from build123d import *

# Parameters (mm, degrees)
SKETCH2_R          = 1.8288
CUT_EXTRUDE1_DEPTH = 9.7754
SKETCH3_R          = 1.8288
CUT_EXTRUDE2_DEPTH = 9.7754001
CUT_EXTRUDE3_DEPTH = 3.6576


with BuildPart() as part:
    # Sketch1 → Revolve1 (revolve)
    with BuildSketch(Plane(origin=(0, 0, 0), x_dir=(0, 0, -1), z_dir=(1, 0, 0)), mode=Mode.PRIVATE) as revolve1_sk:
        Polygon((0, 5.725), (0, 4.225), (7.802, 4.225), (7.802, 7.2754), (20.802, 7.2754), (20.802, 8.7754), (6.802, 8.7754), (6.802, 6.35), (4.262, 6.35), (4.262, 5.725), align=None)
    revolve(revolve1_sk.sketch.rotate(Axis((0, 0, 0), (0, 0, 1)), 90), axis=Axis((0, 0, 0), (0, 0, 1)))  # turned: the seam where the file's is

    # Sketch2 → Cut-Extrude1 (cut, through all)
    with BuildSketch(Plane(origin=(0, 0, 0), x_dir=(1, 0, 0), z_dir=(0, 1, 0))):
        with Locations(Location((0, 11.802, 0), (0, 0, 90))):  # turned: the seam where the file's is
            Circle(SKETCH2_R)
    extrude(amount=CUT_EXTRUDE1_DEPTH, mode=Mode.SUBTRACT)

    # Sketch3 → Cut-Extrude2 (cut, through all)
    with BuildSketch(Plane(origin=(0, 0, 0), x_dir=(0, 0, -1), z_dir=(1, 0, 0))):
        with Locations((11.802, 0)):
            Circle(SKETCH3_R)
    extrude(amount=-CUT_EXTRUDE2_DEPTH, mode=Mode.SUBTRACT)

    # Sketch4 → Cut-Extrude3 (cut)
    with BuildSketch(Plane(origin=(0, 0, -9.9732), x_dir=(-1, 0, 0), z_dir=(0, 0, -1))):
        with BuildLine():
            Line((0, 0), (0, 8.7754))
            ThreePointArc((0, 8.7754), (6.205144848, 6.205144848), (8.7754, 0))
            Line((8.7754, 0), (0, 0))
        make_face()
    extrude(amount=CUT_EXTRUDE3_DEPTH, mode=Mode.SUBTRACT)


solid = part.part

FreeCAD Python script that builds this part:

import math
import FreeCAD as App
import Part
import Sketcher
from FreeCAD import Vector
Q = App.Units.Quantity

doc = App.newDocument("Part")
body = doc.addObject("PartDesign::Body", "Body")

# Sketch on YZ plane
sketch1 = body.newObject("Sketcher::SketchObject", "Sketch")
sketch1.AttachmentSupport = (doc.getObject("YZ_Plane"), [""])
sketch1.MapMode = "FlatFace"
sketch1.addGeometry([
    Part.LineSegment(Vector(5.725, 0, 0), Vector(4.225, 0, 0)),  # 0
    Part.LineSegment(Vector(4.225, 0, 0), Vector(4.225, -7.802, 0)),  # 1
    Part.LineSegment(Vector(4.225, -7.802, 0), Vector(7.2754, -7.802, 0)),  # 2
    Part.LineSegment(Vector(7.2754, -7.802, 0), Vector(7.2754, -20.802, 0)),  # 3
    Part.LineSegment(Vector(7.2754, -20.802, 0), Vector(8.7754, -20.802, 0)),  # 4
    Part.LineSegment(Vector(8.7754, -20.802, 0), Vector(8.7754, -6.802, 0)),  # 5
    Part.LineSegment(Vector(8.7754, -6.802, 0), Vector(6.35, -6.802, 0)),  # 6
    Part.LineSegment(Vector(6.35, -6.802, 0), Vector(6.35, -4.262, 0)),  # 7
    Part.LineSegment(Vector(6.35, -4.262, 0), Vector(5.725, -4.262, 0)),  # 8
    Part.LineSegment(Vector(5.725, -4.262, 0), Vector(5.725, 0, 0)),  # 9
], False)
sketch1.addConstraint([
    Sketcher.Constraint("Coincident", 0, 2, 1, 1),
    Sketcher.Constraint("Coincident", 1, 2, 2, 1),
    Sketcher.Constraint("Coincident", 2, 2, 3, 1),
    Sketcher.Constraint("Coincident", 3, 2, 4, 1),
    Sketcher.Constraint("Coincident", 4, 2, 5, 1),
    Sketcher.Constraint("Coincident", 5, 2, 6, 1),
    Sketcher.Constraint("Coincident", 6, 2, 7, 1),
    Sketcher.Constraint("Coincident", 7, 2, 8, 1),
    Sketcher.Constraint("Coincident", 8, 2, 9, 1),
    Sketcher.Constraint("Coincident", 9, 2, 0, 1),
    Sketcher.Constraint("Horizontal", 0),
    Sketcher.Constraint("Vertical", 1),
    Sketcher.Constraint("Horizontal", 2),
    Sketcher.Constraint("Vertical", 3),
    Sketcher.Constraint("Horizontal", 4),
    Sketcher.Constraint("Vertical", 5),
    Sketcher.Constraint("Horizontal", 6),
    Sketcher.Constraint("Vertical", 7),
    Sketcher.Constraint("Horizontal", 8),
    Sketcher.Constraint("Vertical", 9),
    Sketcher.Constraint("PointOnObject", 0, 2, -1),
    Sketcher.Constraint("Equal", 0, 4),
    Sketcher.Constraint("DistanceY", 3, 2, 3, 1, Q("13 mm")),
    Sketcher.Constraint("DistanceY", 5, 1, 5, 2, Q("14 mm")),
    Sketcher.Constraint("DistanceX", 0, 2, 0, 1, Q("1.5 mm")),
    Sketcher.Constraint("DistanceY", 7, 1, 7, 2, Q("2.54 mm")),
    Sketcher.Constraint("DistanceX", 8, 2, 8, 1, Q("0.625 mm")),
    Sketcher.Constraint("DistanceY", 1, 2, 1, 1, Q("7.802 mm")),
    Sketcher.Constraint("DistanceX", -1, 1, 6, 2, Q("6.35 mm")),
    Sketcher.Constraint("DistanceX", 2, 1, 2, 2, Q("3.0504 mm")),
])
revolution = body.newObject("PartDesign::Revolution", "Revolution")
revolution.Profile = sketch1
revolution.ReferenceAxis = (sketch1, ["V_Axis"])
revolution.Angle = 360

# Sketch on XZ plane
sketch2 = body.newObject("Sketcher::SketchObject", "Sketch001")
sketch2.AttachmentSupport = (doc.getObject("XZ_Plane"), [""])
sketch2.MapMode = "FlatFace"
sketch2.addGeometry(Part.Circle(Vector(0, -11.802, 0), Vector(0, 0, 1), 1.8288), False)
sketch2.addConstraint([
    Sketcher.Constraint("PointOnObject", 0, 3, -2),
    Sketcher.Constraint("Diameter", 0, Q("3.6576 mm")),
    Sketcher.Constraint("DistanceY", 0, 3, -1, 1, Q("11.802 mm")),
])
pocket1 = body.newObject("PartDesign::Pocket", "Pocket")
pocket1.Profile = sketch2
pocket1.Type = "ThroughAll"

# Sketch on YZ plane
sketch3 = body.newObject("Sketcher::SketchObject", "Sketch002")
sketch3.AttachmentSupport = (doc.getObject("YZ_Plane"), [""])
sketch3.MapMode = "FlatFace"
sketch3.addGeometry(Part.Circle(Vector(0, -11.802, 0), Vector(0, 0, 1), 1.8288), False)
sketch3.addConstraint([
    Sketcher.Constraint("PointOnObject", 0, 3, -2),
    Sketcher.Constraint("Diameter", 0, Q("3.6576 mm")),
    Sketcher.Constraint("DistanceY", 0, 3, -1, 1, Q("11.802 mm")),
])
pocket2 = body.newObject("PartDesign::Pocket", "Pocket001")
pocket2.Profile = sketch3
pocket2.Type = "ThroughAll"

# Sketch on XY plane
sketch4 = body.newObject("Sketcher::SketchObject", "Sketch003")
sketch4.AttachmentSupport = (doc.getObject("XY_Plane"), [""])
sketch4.MapMode = "FlatFace"
sketch4.AttachmentOffset = App.Placement(Vector(0, 0, -9.9732), App.Rotation())
sketch4.addGeometry([
    Part.LineSegment(Vector(0, 8.7754, 0), Vector(0, 0, 0)),
    Part.LineSegment(Vector(0, 0, 0), Vector(-8.7754, 0, 0)),
    Part.ArcOfCircle(Part.Circle(Vector(0, 0, 0), Vector(0, 0, 1), 8.7754), math.radians(90), math.radians(180)),
], False)
sketch4.addConstraint([
    Sketcher.Constraint("Coincident", 0, 2, 1, 1),
    Sketcher.Constraint("Coincident", 1, 2, 2, 2),
    Sketcher.Constraint("Coincident", 2, 1, 0, 1),
    Sketcher.Constraint("Vertical", 0),
    Sketcher.Constraint("Horizontal", 1),
    Sketcher.Constraint("Coincident", 2, 3, -1, 1),
    Sketcher.Constraint("Coincident", 0, 2, -1, 1),
    Sketcher.Constraint("Radius", 2, Q("8.7754 mm")),
])
pocket3 = body.newObject("PartDesign::Pocket", "Pocket002")
pocket3.Profile = sketch4
pocket3.Length = 3.6576

doc.recompute()
